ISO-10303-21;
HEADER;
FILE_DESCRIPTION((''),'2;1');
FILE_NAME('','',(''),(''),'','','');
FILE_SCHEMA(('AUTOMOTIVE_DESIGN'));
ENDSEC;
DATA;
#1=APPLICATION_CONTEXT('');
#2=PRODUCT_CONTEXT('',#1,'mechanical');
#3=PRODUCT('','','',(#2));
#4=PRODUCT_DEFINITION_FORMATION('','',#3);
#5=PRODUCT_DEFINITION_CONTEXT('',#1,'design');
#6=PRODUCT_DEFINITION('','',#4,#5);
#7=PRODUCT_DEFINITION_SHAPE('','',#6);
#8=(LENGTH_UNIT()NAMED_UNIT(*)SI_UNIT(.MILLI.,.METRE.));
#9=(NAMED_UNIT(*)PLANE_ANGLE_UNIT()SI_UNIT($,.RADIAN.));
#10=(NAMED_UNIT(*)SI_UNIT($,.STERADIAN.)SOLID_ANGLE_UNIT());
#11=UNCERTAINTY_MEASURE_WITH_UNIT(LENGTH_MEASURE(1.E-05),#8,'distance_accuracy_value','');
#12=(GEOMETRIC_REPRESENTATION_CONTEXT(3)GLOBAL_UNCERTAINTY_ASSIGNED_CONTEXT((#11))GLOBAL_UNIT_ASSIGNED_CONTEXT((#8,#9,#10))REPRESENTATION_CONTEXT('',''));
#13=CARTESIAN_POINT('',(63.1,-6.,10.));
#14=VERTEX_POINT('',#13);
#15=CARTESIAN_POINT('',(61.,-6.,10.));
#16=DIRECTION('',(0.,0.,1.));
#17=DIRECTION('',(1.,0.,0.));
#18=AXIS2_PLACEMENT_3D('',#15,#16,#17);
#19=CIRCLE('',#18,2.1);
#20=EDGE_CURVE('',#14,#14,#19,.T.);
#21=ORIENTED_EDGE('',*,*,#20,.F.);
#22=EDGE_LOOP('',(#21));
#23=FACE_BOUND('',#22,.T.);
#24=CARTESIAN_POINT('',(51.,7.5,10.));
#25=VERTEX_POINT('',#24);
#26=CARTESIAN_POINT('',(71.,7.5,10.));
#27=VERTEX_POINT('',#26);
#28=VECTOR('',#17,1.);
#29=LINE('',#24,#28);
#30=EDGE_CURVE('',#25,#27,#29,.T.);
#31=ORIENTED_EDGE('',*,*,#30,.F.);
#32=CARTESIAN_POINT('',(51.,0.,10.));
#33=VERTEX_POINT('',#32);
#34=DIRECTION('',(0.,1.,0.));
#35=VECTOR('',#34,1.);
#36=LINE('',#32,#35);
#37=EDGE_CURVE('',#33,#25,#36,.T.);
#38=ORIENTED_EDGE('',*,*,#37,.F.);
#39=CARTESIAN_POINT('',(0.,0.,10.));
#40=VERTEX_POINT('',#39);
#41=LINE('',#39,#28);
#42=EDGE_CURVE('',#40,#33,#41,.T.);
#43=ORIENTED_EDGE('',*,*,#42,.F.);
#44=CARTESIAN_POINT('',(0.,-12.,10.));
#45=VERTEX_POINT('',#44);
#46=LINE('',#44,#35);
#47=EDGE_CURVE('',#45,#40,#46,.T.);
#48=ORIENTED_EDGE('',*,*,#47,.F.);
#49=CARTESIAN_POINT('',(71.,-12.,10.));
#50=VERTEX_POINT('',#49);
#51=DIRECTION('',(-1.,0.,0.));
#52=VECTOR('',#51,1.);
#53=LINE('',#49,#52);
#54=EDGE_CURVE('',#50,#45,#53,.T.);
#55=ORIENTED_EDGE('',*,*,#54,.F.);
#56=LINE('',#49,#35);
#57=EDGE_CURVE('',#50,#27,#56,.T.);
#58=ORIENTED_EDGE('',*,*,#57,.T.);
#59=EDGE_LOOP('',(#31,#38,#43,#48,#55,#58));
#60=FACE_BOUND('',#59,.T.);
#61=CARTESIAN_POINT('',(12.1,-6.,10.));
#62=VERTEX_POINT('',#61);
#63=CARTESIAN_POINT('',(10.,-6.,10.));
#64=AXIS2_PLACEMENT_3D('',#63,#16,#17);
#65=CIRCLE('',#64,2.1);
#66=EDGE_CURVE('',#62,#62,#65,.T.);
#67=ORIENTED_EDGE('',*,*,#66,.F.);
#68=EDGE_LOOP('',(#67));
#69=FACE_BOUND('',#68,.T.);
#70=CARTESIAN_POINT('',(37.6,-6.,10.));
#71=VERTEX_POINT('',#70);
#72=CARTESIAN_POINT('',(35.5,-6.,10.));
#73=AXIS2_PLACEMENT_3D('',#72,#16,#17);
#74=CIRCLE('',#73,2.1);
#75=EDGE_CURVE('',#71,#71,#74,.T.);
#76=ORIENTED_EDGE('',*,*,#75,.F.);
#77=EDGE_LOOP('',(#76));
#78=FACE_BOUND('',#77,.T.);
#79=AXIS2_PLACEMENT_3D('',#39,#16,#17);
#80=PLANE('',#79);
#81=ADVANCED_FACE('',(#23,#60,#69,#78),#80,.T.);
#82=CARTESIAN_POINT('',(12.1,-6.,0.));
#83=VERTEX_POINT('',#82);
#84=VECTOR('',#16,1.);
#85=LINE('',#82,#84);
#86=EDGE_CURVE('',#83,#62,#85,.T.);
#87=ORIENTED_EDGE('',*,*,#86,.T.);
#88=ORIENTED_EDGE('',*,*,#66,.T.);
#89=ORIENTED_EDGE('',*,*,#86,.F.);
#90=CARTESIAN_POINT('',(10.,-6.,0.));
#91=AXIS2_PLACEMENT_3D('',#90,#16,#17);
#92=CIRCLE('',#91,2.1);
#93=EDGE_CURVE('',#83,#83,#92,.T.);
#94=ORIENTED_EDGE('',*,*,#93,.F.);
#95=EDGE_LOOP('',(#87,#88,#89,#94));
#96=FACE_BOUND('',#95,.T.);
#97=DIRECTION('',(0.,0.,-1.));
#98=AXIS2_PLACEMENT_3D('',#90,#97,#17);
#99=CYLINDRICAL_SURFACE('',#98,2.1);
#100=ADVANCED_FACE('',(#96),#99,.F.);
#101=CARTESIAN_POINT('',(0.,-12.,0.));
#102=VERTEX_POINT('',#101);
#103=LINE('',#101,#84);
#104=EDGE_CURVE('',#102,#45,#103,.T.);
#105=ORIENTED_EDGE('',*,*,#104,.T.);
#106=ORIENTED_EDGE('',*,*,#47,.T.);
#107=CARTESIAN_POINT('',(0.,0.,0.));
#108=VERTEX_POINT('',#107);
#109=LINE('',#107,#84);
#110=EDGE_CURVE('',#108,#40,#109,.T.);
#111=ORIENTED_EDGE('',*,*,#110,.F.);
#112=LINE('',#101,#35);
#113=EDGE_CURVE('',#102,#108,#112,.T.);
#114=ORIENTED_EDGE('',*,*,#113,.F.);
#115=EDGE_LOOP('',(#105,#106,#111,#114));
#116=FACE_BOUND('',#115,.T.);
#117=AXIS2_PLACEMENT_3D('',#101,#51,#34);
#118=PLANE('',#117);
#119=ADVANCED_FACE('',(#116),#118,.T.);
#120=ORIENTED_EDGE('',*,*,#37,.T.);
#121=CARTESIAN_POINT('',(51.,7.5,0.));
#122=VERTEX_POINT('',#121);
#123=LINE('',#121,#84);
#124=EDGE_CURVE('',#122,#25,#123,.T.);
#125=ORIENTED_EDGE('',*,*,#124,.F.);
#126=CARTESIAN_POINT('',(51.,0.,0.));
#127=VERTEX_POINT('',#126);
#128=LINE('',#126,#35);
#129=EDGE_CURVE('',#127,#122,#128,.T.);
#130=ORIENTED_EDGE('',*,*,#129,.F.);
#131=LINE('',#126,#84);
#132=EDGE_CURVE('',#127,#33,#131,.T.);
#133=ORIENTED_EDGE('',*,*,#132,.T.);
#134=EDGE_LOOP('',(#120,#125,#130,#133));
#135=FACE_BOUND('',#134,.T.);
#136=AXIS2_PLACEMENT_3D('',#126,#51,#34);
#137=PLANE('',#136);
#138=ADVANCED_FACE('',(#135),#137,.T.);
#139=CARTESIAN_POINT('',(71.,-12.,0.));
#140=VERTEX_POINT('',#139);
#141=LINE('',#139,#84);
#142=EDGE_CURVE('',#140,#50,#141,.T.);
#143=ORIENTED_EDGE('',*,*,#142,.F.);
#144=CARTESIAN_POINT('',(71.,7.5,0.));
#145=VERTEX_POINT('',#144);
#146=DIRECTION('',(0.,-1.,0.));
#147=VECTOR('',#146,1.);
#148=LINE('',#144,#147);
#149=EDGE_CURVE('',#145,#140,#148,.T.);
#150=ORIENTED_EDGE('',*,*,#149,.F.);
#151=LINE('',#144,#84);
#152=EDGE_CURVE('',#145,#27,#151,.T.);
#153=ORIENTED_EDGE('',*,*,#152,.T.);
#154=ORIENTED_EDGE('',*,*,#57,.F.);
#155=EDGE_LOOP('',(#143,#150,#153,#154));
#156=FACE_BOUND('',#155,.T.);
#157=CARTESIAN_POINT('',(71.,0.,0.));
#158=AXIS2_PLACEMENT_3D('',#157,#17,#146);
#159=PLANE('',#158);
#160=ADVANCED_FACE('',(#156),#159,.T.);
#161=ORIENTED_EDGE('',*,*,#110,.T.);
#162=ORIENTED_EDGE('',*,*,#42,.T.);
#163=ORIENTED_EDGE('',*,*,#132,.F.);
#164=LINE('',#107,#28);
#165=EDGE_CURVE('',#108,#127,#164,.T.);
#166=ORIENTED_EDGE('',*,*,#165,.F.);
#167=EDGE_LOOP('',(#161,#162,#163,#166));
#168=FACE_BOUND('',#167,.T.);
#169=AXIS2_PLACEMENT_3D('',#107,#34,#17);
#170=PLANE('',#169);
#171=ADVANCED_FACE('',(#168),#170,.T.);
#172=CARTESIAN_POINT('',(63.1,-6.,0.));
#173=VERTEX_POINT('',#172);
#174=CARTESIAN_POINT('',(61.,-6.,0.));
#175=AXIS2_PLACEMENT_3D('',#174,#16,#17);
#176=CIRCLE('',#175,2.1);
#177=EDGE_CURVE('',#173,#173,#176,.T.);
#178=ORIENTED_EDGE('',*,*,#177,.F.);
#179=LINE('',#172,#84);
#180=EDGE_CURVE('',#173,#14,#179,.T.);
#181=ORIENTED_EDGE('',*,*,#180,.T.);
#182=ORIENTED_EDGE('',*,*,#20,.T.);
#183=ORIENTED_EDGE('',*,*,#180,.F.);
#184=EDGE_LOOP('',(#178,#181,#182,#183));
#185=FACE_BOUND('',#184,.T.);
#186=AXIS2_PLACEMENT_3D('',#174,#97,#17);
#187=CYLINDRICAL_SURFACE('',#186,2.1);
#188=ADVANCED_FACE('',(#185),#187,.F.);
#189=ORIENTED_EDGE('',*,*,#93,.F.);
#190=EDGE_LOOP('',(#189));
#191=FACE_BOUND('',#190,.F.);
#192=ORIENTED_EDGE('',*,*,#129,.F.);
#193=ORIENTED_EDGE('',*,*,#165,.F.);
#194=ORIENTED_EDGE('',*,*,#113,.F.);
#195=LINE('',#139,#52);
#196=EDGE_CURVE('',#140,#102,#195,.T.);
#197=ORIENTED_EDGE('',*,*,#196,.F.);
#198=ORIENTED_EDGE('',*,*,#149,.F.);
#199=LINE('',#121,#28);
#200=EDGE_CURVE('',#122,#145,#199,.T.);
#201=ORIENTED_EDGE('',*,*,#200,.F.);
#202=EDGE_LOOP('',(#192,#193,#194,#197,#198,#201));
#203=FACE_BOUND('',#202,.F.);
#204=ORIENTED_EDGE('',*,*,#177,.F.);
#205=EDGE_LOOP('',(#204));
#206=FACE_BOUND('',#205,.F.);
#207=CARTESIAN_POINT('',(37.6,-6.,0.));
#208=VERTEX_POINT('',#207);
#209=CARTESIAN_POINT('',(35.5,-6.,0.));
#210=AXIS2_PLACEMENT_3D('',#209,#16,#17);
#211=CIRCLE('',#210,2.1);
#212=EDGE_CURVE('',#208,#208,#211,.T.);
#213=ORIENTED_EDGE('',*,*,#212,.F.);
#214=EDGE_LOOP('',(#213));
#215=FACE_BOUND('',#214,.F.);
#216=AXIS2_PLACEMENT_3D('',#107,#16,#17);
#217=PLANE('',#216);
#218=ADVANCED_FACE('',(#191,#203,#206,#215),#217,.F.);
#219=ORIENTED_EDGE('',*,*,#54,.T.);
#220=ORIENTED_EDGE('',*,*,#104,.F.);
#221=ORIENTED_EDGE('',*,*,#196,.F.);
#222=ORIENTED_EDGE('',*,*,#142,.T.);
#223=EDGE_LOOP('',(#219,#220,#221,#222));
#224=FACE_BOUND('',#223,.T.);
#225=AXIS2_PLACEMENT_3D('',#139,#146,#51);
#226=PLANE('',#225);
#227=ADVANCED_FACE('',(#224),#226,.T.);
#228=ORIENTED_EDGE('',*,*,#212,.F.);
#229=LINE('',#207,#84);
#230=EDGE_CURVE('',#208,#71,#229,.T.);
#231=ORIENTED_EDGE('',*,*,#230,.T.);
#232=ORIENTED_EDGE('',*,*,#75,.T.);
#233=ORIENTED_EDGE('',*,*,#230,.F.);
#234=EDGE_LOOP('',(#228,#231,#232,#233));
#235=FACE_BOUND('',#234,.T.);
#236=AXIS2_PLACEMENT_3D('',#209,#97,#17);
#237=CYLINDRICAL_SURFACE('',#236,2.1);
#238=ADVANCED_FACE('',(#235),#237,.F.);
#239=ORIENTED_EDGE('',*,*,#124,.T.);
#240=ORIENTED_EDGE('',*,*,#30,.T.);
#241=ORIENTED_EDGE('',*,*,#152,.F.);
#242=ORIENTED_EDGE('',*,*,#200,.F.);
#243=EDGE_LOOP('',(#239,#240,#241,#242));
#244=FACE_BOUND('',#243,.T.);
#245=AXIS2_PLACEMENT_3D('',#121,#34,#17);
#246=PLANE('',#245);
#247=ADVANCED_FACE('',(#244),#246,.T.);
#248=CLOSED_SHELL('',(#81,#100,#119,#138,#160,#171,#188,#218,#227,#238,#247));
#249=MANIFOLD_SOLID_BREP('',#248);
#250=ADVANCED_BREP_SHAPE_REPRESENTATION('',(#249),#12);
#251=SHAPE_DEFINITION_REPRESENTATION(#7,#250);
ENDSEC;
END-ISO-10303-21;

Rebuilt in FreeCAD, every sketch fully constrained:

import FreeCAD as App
import Part
import Sketcher

V = App.Vector
Q = App.Units.Quantity

doc = App.newDocument("Part")
body = doc.addObject("PartDesign::Body", "Body")

# Sketch on XY plane
sketch1 = doc.addObject("Sketcher::SketchObject", "Sketch")
body.addObject(sketch1)
sketch1.AttachmentSupport = (doc.XY_Plane, [""])
sketch1.MapMode = "FlatFace"
sketch1.addGeometry([
    Part.LineSegment(V(51, 0, 0), V(0, 0, 0)),  # 0
    Part.LineSegment(V(0, 0, 0), V(0, -12, 0)),  # 1
    Part.LineSegment(V(0, -12, 0), V(71, -12, 0)),  # 2
    Part.LineSegment(V(71, -12, 0), V(71, 7.5, 0)),  # 3
    Part.LineSegment(V(71, 7.5, 0), V(51, 7.5, 0)),  # 4
    Part.LineSegment(V(51, 7.5, 0), V(51, 0, 0)),  # 5
    Part.Circle(V(10, -6, 0), V(0, 0, 1), 2.1),  # 6
    Part.Circle(V(35.5, -6, 0), V(0, 0, 1), 2.1),  # 7
    Part.Circle(V(61, -6, 0), V(0, 0, 1), 2.1),  # 8
], False)
sketch1.addConstraint([
    Sketcher.Constraint("Coincident", 0, 2, 1, 1),
    Sketcher.Constraint("Coincident", 1, 2, 2, 1),
    Sketcher.Constraint("Coincident", 2, 2, 3, 1),
    Sketcher.Constraint("Coincident", 3, 2, 4, 1),
    Sketcher.Constraint("Coincident", 4, 2, 5, 1),
    Sketcher.Constraint("Coincident", 5, 2, 0, 1),
    Sketcher.Constraint("Horizontal", 0),
    Sketcher.Constraint("Vertical", 1),
    Sketcher.Constraint("Horizontal", 2),
    Sketcher.Constraint("Vertical", 3),
    Sketcher.Constraint("Horizontal", 4),
    Sketcher.Constraint("Vertical", 5),
    Sketcher.Constraint("Coincident", 0, 2, -1, 1),
    Sketcher.Constraint("Equal", 6, 7),
    Sketcher.Constraint("Equal", 7, 8),
    Sketcher.Constraint("Horizontal", 6, 3, 7, 3),
    Sketcher.Constraint("Horizontal", 7, 3, 8, 3),
    Sketcher.Constraint("Diameter", 6, Q("4.2 mm")),
    Sketcher.Constraint("DistanceX", 2, 1, 2, 2, Q("71 mm")),
    Sketcher.Constraint("DistanceX", 4, 2, 4, 1, Q("20 mm")),
    Sketcher.Constraint("DistanceY", 1, 2, 1, 1, Q("12 mm")),
    Sketcher.Constraint("DistanceY", 5, 2, 5, 1, Q("7.5 mm")),
    Sketcher.Constraint("DistanceX", -1, 1, 6, 3, Q("10 mm")),
    Sketcher.Constraint("DistanceY", 6, 3, -1, 1, Q("6 mm")),
    Sketcher.Constraint("DistanceX", 8, 3, 2, 2, Q("10 mm")),
    Sketcher.Constraint("DistanceX", -1, 1, 7, 3, Q("35.5 mm")),
])
pad1 = doc.addObject("PartDesign::Pad", "Pad")
body.addObject(pad1)
pad1.Profile = sketch1
pad1.Length = 10

doc.recompute()
